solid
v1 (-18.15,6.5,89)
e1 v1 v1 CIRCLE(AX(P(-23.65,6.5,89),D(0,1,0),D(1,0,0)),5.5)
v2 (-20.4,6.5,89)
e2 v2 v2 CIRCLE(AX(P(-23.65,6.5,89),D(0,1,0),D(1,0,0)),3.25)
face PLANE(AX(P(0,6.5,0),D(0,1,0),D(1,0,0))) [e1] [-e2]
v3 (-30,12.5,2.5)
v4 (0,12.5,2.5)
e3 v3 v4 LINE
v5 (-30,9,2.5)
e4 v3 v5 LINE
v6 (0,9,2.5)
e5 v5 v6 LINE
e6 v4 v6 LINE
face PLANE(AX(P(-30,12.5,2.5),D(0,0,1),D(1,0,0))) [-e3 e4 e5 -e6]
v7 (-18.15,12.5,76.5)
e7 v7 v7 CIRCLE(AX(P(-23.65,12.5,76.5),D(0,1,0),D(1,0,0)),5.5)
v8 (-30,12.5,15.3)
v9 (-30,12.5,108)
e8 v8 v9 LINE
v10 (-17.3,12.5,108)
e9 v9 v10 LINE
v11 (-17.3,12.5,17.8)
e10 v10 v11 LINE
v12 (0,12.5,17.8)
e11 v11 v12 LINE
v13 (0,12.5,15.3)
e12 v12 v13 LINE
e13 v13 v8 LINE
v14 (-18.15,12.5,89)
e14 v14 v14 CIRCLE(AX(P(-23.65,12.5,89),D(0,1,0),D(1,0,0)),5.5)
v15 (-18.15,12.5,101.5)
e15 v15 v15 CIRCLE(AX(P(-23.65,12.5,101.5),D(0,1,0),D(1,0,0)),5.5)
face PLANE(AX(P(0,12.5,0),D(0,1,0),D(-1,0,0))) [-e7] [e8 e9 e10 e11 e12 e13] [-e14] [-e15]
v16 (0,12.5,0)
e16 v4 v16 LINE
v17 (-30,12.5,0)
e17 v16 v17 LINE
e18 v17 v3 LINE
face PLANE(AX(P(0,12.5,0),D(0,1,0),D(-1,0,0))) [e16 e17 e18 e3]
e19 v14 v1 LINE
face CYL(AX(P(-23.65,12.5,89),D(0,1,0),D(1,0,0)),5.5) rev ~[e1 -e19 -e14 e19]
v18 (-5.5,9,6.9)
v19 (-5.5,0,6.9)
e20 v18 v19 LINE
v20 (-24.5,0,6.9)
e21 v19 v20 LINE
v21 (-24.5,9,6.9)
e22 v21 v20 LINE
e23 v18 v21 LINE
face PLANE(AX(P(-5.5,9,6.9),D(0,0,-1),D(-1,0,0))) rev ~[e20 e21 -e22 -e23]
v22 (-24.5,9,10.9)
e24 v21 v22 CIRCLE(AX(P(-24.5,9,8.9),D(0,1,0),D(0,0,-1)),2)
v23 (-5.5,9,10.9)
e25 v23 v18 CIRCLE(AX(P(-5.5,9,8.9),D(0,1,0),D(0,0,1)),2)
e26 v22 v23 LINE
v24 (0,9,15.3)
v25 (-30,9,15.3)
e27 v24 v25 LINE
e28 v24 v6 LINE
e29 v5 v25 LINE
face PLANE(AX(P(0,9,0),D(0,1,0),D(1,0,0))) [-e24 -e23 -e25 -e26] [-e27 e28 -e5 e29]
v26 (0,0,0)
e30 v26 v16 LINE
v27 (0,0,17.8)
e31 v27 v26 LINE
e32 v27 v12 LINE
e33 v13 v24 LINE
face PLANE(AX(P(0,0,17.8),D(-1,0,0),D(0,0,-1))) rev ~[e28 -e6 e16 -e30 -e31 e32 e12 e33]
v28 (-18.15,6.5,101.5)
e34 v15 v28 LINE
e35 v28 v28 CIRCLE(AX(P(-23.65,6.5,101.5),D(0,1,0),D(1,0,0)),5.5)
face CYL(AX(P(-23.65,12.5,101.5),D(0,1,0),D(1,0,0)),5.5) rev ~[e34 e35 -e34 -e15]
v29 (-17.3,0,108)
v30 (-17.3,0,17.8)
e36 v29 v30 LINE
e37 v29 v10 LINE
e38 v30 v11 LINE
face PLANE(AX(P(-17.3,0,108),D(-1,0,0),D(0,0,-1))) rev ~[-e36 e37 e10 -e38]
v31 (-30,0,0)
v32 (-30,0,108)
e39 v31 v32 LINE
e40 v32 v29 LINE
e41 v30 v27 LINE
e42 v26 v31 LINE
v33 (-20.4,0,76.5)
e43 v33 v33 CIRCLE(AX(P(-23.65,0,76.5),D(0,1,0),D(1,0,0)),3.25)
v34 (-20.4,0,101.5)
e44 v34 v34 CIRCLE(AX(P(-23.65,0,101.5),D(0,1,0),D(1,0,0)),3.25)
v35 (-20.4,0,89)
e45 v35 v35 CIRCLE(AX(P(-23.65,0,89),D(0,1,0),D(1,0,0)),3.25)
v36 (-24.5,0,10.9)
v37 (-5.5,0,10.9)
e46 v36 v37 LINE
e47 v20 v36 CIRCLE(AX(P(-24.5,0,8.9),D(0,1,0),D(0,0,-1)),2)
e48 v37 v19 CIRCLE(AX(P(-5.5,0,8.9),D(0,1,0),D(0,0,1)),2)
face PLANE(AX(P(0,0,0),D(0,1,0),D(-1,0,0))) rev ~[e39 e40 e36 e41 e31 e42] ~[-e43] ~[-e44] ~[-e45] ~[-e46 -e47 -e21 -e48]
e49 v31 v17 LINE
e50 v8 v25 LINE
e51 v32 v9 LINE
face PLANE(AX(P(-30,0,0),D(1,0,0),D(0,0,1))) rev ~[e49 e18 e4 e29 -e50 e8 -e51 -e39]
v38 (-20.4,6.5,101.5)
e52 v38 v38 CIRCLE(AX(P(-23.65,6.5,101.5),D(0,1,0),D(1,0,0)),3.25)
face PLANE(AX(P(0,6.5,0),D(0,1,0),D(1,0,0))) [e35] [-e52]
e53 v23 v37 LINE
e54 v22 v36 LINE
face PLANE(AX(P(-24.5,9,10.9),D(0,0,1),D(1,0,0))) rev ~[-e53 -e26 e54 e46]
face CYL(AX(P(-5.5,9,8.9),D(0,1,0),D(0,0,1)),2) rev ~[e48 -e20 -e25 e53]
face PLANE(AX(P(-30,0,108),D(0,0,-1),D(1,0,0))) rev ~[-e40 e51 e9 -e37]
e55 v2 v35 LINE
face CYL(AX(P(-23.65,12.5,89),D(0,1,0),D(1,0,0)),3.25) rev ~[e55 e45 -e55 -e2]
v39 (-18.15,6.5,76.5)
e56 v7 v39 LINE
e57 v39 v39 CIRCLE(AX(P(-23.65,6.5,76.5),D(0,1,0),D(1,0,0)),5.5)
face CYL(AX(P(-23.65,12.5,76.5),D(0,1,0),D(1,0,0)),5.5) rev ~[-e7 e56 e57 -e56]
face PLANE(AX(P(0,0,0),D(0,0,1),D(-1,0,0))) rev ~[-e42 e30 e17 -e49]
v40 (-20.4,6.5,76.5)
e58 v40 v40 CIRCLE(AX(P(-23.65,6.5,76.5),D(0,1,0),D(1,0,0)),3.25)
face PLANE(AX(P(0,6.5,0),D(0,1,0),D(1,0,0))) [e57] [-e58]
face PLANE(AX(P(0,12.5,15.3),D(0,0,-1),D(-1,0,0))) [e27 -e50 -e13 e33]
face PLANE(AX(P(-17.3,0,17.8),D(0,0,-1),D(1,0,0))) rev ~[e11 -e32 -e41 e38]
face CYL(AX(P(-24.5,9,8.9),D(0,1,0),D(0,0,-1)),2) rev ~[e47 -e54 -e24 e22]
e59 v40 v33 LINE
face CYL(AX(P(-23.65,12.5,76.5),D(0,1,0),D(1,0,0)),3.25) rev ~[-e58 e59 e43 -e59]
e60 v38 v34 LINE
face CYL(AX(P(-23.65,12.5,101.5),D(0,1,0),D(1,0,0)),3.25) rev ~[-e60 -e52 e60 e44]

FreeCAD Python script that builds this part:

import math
import FreeCAD as App
import Part
import Sketcher
from FreeCAD import Vector

doc = App.newDocument("Part")
params = doc.addObject("Spreadsheet::Sheet", "Params")
for row, (alias, value) in enumerate([
    ("sketch1_width", "30 mm"),
    ("sketch1_height", "108 mm"),
    ("sketch1_width2", "12.7 mm"),
    ("sketch1_height2", "90.2 mm"),
    ("pad1_length", "12.5 mm"),
    ("sketch2_height", "12.8 mm"),
    ("sketch2_width", "30 mm"),
    ("pocket1_length", "3.5 mm"),
    ("sketch3_radius", "2 mm"),
    ("sketch3_width", "19 mm"),
    ("sketch4_diameter", "6.5 mm"),
    ("sketch5_diameter", "11 mm"),
    ("sketch5_diameter2", "6.5 mm"),
    ("pocket4_length", "6 mm"),
], start=1):
    params.set(f"A{row}", alias)
    params.set(f"B{row}", "=" + value)
    params.setAlias(f"B{row}", alias)

body = doc.addObject("PartDesign::Body", "Body")

sketch1 = body.newObject("Sketcher::SketchObject", "Sketch")
sketch1.AttachmentSupport = (doc.getObject("XZ_Plane"), [""])
sketch1.MapMode = "FlatFace"
sketch1.addGeometry([
    Part.LineSegment(Vector(0, 18, 0), Vector(0, 0, 0)),
    Part.LineSegment(Vector(0, 0, 0), Vector(-30, 0, 0)),
    Part.LineSegment(Vector(-30, 0, 0), Vector(-30, 108, 0)),
    Part.LineSegment(Vector(-30, 108, 0), Vector(-17, 108, 0)),
    Part.LineSegment(Vector(-17, 108, 0), Vector(-17, 18, 0)),
    Part.LineSegment(Vector(-17, 18, 0), Vector(0, 18, 0)),
], False)
sketch1.addConstraint([
    Sketcher.Constraint("Coincident", 0, 2, 1, 1),
    Sketcher.Constraint("Coincident", 1, 2, 2, 1),
    Sketcher.Constraint("Coincident", 2, 2, 3, 1),
    Sketcher.Constraint("Coincident", 3, 2, 4, 1),
    Sketcher.Constraint("Coincident", 4, 2, 5, 1),
    Sketcher.Constraint("Coincident", 5, 2, 0, 1),
    Sketcher.Constraint("Vertical", 0),
    Sketcher.Constraint("Horizontal", 1),
    Sketcher.Constraint("Vertical", 2),
    Sketcher.Constraint("Horizontal", 3),
    Sketcher.Constraint("Vertical", 4),
    Sketcher.Constraint("Horizontal", 5),
    Sketcher.Constraint("Coincident", 0, 2, -1, 1),
    Sketcher.Constraint("DistanceX", 1, 2, 1, 1, 30.0),
    Sketcher.Constraint("DistanceY", 2, 1, 2, 2, 108.0),
    Sketcher.Constraint("DistanceX", 3, 1, 3, 2, 12.7),
    Sketcher.Constraint("DistanceY", 4, 2, 4, 1, 90.2),
])
sketch1.setExpression("Constraints[13]", "Params.sketch1_width")
sketch1.setExpression("Constraints[14]", "Params.sketch1_height")
sketch1.setExpression("Constraints[15]", "Params.sketch1_width2")
sketch1.setExpression("Constraints[16]", "Params.sketch1_height2")
pad1 = body.newObject("PartDesign::Pad", "Pad")
pad1.Profile = sketch1
pad1.setExpression("Length", "Params.pad1_length")
pad1.Reversed = True

sketch2 = body.newObject("Sketcher::SketchObject", "Sketch001")
sketch2.AttachmentSupport = (doc.getObject("XZ_Plane"), [""])
sketch2.MapMode = "FlatFace"
sketch2.AttachmentOffset = App.Placement(Vector(0, 0, -12.5), App.Rotation())
sketch2.addGeometry([
    Part.LineSegment(Vector(-30, 15, 0), Vector(0, 15, 0)),
    Part.LineSegment(Vector(0, 15, 0), Vector(0, 2, 0)),
    Part.LineSegment(Vector(0, 2, 0), Vector(-30, 2, 0)),
    Part.LineSegment(Vector(-30, 2, 0), Vector(-30, 15, 0)),
], False)
sketch2.addConstraint([
    Sketcher.Constraint("Coincident", 0, 2, 1, 1),
    Sketcher.Constraint("Coincident", 1, 2, 2, 1),
    Sketcher.Constraint("Coincident", 2, 2, 3, 1),
    Sketcher.Constraint("Coincident", 3, 2, 0, 1),
    Sketcher.Constraint("Horizontal", 0),
    Sketcher.Constraint("Vertical", 1),
    Sketcher.Constraint("Horizontal", 2),
    Sketcher.Constraint("Vertical", 3),
    Sketcher.Constraint("PointOnObject", 0, 2, -2),
    Sketcher.Constraint("DistanceY", 1, 2, 1, 1, 12.8),
    Sketcher.Constraint("DistanceX", 0, 1, 0, 2, 30.0),
    Sketcher.Constraint("DistanceY", -1, 1, 0, 2, 15.3),
])
sketch2.setExpression("Constraints[9]", "Params.sketch2_height")
sketch2.setExpression("Constraints[10]", "Params.sketch2_width")
pocket1 = body.newObject("PartDesign::Pocket", "Pocket")
pocket1.Profile = sketch2
pocket1.setExpression("Length", "Params.pocket1_length")
pocket1.Reversed = True

sketch3 = body.newObject("Sketcher::SketchObject", "Sketch002")
sketch3.AttachmentSupport = (doc.getObject("XZ_Plane"), [""])
sketch3.MapMode = "FlatFace"
sketch3.AttachmentOffset = App.Placement(Vector(0, 0, -9), App.Rotation())
sketch3.addGeometry([
    Part.LineSegment(Vector(-24.5, 10.9, 0), Vector(-5.5, 10.9, 0)),
    Part.ArcOfCircle(Part.Circle(Vector(-5.5, 8.9, 0), Vector(0, 0, 1), 2), math.radians(-90), math.radians(90)),
    Part.LineSegment(Vector(-5.5, 6.9, 0), Vector(-24.5, 6.9, 0)),
    Part.ArcOfCircle(Part.Circle(Vector(-24.5, 8.9, 0), Vector(0, 0, 1), 2), math.radians(90), math.radians(270)),
], False)
sketch3.addConstraint([
    Sketcher.Constraint("Tangent", 0, 2, 1, 2),
    Sketcher.Constraint("Tangent", 1, 1, 2, 1),
    Sketcher.Constraint("Tangent", 2, 2, 3, 2),
    Sketcher.Constraint("Tangent", 3, 1, 0, 1),
    Sketcher.Constraint("Horizontal", 0),
    Sketcher.Constraint("Horizontal", 2),
    Sketcher.Constraint("Radius", 1, 2.0),
    Sketcher.Constraint("DistanceX", 0, 1, 0, 2, 19.0),
    Sketcher.Constraint("DistanceX", 1, 3, -1, 1, 5.5),
    Sketcher.Constraint("DistanceY", -1, 1, 1, 3, 8.9),
])
sketch3.setExpression("Constraints[6]", "Params.sketch3_radius")
sketch3.setExpression("Constraints[7]", "Params.sketch3_width")
pocket2 = body.newObject("PartDesign::Pocket", "Pocket001")
pocket2.Profile = sketch3
pocket2.Type = "ThroughAll"
pocket2.Reversed = True

sketch4 = body.newObject("Sketcher::SketchObject", "Sketch003")
sketch4.AttachmentSupport = (doc.getObject("XZ_Plane"), [""])
sketch4.MapMode = "FlatFace"
sketch4.AttachmentOffset = App.Placement(Vector(0, 0, -12.5), App.Rotation())
sketch4.addGeometry([
    Part.Circle(Vector(-23.6, 76.5, 0), Vector(0, 0, 1), 3.2),
    Part.Circle(Vector(-23.6, 89, 0), Vector(0, 0, 1), 3.2),
    Part.Circle(Vector(-23.6, 101.5, 0), Vector(0, 0, 1), 3.2),
], False)
sketch4.addConstraint([
    Sketcher.Constraint("Equal", 0, 1),
    Sketcher.Constraint("Equal", 1, 2),
    Sketcher.Constraint("Vertical", 0, 3, 1, 3),
    Sketcher.Constraint("Vertical", 1, 3, 2, 3),
    Sketcher.Constraint("Diameter", 0, 6.5),
    Sketcher.Constraint("DistanceY", 0, 3, 1, 3, 12.5),
    Sketcher.Constraint("DistanceY", 1, 3, 2, 3, 12.5),
    Sketcher.Constraint("DistanceY", -1, 1, 1, 3, 89.0),
    Sketcher.Constraint("DistanceX", 0, 3, -1, 1, 23.65),
])
sketch4.setExpression("Constraints[4]", "Params.sketch4_diameter")
pocket3 = body.newObject("PartDesign::Pocket", "Pocket002")
pocket3.Profile = sketch4
pocket3.Type = "ThroughAll"
pocket3.Reversed = True

sketch5 = body.newObject("Sketcher::SketchObject", "Sketch004")
sketch5.AttachmentSupport = (doc.getObject("XZ_Plane"), [""])
sketch5.MapMode = "FlatFace"
sketch5.AttachmentOffset = App.Placement(Vector(0, 0, -12.5), App.Rotation())
sketch5.addGeometry([
    Part.Circle(Vector(-23.6, 101.5, 0), Vector(0, 0, 1), 5.5),
    Part.Circle(Vector(-23.6, 101.5, 0), Vector(0, 0, 1), 3.2),
    Part.Circle(Vector(-23.6, 89, 0), Vector(0, 0, 1), 5.5),
    Part.Circle(Vector(-23.6, 89, 0), Vector(0, 0, 1), 3.2),
    Part.Circle(Vector(-23.6, 76.5, 0), Vector(0, 0, 1), 5.5),
    Part.Circle(Vector(-23.6, 76.5, 0), Vector(0, 0, 1), 3.2),
], False)
sketch5.addConstraint([
    Sketcher.Constraint("Coincident", 1, 3, 0, 3),
    Sketcher.Constraint("Coincident", 3, 3, 2, 3),
    Sketcher.Constraint("Coincident", 5, 3, 4, 3),
    Sketcher.Constraint("Equal", 0, 2),
    Sketcher.Constraint("Equal", 1, 3),
    Sketcher.Constraint("Equal", 2, 4),
    Sketcher.Constraint("Equal", 3, 5),
    Sketcher.Constraint("Vertical", 1, 3, 2, 3),
    Sketcher.Constraint("Vertical", 3, 3, 4, 3),
    Sketcher.Constraint("Diameter", 0, 11.0),
    Sketcher.Constraint("Diameter", 1, 6.5),
    Sketcher.Constraint("DistanceY", 2, 3, 0, 3, 12.5),
    Sketcher.Constraint("DistanceY", 4, 3, 2, 3, 12.5),
    Sketcher.Constraint("DistanceY", -1, 1, 2, 3, 89.0),
    Sketcher.Constraint("DistanceX", 0, 3, -1, 1, 23.65),
])
sketch5.setExpression("Constraints[9]", "Params.sketch5_diameter")
sketch5.setExpression("Constraints[10]", "Params.sketch5_diameter2")
pocket4 = body.newObject("PartDesign::Pocket", "Pocket003")
pocket4.Profile = sketch5
pocket4.setExpression("Length", "Params.pocket4_length")
pocket4.Reversed = True

doc.recompute()
